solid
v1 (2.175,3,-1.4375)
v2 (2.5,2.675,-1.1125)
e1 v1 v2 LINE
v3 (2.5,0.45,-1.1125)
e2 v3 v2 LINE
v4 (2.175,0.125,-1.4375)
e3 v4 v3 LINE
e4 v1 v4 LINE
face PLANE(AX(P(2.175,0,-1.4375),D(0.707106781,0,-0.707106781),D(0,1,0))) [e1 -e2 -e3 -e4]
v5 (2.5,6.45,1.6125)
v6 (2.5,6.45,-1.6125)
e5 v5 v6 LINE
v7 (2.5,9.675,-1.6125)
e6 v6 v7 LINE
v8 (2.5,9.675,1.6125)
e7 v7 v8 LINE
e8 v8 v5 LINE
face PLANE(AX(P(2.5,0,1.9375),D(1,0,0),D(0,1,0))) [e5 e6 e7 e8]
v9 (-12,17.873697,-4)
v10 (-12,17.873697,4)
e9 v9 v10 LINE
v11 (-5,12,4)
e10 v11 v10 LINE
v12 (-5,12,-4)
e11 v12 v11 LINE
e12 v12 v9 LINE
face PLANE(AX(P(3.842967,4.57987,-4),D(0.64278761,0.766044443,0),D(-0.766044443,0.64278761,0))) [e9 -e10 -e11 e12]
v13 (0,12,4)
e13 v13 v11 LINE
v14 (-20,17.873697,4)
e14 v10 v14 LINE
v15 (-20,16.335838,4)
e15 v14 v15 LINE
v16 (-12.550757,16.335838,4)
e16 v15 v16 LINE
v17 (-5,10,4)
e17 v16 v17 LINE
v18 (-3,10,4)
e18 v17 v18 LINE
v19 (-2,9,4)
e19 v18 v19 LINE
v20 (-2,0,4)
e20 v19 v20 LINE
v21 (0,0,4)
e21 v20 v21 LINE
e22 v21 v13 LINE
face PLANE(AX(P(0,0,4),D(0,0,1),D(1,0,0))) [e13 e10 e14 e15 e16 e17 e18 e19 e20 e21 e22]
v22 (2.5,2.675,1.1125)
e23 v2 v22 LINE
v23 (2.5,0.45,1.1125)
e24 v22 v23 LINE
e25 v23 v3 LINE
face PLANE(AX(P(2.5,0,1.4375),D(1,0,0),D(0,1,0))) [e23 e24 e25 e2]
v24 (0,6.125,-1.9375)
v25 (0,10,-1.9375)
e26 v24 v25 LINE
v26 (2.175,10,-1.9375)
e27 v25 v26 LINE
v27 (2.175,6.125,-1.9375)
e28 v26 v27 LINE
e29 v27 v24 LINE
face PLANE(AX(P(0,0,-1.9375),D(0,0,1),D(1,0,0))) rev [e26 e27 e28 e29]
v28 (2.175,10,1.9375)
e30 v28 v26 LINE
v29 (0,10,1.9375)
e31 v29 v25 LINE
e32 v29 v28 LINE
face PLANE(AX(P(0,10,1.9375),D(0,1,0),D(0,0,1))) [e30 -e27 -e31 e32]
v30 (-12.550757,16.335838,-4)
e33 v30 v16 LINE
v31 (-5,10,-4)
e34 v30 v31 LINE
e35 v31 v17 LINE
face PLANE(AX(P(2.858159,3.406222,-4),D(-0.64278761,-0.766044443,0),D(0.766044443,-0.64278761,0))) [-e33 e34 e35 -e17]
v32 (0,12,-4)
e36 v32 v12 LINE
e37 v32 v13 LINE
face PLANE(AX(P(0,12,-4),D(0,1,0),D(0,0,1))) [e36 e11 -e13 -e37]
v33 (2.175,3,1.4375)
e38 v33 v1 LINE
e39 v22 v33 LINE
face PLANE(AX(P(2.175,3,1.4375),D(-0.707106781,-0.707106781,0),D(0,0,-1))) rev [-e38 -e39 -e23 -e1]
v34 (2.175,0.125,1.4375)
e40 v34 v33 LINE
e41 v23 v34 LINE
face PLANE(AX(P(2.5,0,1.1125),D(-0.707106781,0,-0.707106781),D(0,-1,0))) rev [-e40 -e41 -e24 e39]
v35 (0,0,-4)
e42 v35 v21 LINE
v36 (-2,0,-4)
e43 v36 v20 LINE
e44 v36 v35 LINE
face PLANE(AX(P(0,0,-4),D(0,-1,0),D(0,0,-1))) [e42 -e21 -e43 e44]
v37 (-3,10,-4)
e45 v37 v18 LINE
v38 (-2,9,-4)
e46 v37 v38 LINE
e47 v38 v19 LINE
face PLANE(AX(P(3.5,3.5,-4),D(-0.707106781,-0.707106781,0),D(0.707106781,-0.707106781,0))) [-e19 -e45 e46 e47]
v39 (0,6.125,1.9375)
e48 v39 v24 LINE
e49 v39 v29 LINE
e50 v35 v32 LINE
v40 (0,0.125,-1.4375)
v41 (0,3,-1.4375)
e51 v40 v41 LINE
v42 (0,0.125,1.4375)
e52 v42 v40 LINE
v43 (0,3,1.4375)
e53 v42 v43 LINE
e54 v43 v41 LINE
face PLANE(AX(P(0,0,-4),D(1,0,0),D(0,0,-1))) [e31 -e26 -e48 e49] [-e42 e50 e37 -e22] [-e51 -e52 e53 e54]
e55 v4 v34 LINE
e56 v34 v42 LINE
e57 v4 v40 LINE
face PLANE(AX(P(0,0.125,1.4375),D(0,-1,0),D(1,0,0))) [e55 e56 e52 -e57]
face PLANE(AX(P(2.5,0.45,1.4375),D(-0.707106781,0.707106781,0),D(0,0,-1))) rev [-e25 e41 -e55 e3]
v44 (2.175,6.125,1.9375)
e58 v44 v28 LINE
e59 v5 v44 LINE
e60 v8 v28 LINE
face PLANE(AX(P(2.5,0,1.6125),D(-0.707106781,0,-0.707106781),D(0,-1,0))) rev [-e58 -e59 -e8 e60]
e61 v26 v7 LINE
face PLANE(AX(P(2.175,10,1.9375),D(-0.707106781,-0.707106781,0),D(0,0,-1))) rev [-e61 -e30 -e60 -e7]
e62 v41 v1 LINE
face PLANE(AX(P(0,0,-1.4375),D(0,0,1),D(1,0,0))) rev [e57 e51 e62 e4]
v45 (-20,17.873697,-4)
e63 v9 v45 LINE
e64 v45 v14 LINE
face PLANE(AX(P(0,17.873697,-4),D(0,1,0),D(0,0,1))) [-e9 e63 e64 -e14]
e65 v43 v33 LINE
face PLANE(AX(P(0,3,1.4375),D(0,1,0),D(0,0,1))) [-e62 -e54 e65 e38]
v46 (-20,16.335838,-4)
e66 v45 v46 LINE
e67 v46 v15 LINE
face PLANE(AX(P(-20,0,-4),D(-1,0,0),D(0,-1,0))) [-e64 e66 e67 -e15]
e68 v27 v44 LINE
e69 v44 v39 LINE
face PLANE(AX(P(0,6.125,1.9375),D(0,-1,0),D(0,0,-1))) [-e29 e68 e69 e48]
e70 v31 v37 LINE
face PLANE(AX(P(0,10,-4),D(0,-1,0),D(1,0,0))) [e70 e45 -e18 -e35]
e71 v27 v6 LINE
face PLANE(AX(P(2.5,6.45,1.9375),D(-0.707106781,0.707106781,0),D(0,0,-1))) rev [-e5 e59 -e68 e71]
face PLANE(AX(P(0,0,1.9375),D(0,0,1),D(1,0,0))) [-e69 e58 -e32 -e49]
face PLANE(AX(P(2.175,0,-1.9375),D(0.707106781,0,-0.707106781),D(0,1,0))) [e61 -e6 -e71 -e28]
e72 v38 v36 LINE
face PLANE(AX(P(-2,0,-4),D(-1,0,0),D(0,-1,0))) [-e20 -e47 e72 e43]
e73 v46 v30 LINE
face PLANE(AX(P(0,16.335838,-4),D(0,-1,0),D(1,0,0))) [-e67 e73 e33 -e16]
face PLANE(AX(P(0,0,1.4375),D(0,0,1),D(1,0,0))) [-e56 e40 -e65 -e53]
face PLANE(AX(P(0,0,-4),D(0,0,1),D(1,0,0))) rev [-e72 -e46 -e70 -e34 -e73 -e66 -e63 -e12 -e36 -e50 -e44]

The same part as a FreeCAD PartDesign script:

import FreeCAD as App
import Part
import Sketcher

V = App.Vector
Q = App.Units.Quantity


def edges_at(feature, points):
    """Names of the edges that pass closest to the given points."""
    edges = feature.Shape.Edges
    near = lambda p: min(range(len(edges)), key=lambda i: edges[i].distToShape(Part.Vertex(*p))[0])
    return sorted({f"Edge{near(p) + 1}" for p in points})

doc = App.newDocument("Part")
body = doc.addObject("PartDesign::Body", "Body")

# Sketch on XY plane
sketch1 = body.newObject("Sketcher::SketchObject", "Sketch")
sketch1.AttachmentSupport = (doc.getObject("XY_Plane"), [""])
sketch1.MapMode = "FlatFace"
sketch1.addGeometry([
    Part.LineSegment(V(-5, 10, 0), V(-3, 10, 0)),  # 0
    Part.LineSegment(V(-3, 10, 0), V(-2, 9, 0)),  # 1
    Part.LineSegment(V(-2, 9, 0), V(-2, 0, 0)),  # 2
    Part.LineSegment(V(-2, 0, 0), V(0, 0, 0)),  # 3
    Part.LineSegment(V(0, 0, 0), V(0, 12, 0)),  # 4
    Part.LineSegment(V(0, 12, 0), V(-5, 12, 0)),  # 5
    Part.LineSegment(V(-5, 12, 0), V(-12, 17.9, 0)),  # 6
    Part.LineSegment(V(-12, 17.9, 0), V(-20, 17.9, 0)),  # 7
    Part.LineSegment(V(-20, 17.9, 0), V(-20, 16.3, 0)),  # 8
    Part.LineSegment(V(-20, 16.3, 0), V(-12.6, 16.3, 0)),  # 9
    Part.LineSegment(V(-12.6, 16.3, 0), V(-5, 10, 0)),  # 10
], False)
sketch1.addConstraint([
    Sketcher.Constraint("Coincident", 0, 2, 1, 1),
    Sketcher.Constraint("Coincident", 1, 2, 2, 1),
    Sketcher.Constraint("Coincident", 2, 2, 3, 1),
    Sketcher.Constraint("Coincident", 3, 2, 4, 1),
    Sketcher.Constraint("Coincident", 4, 2, 5, 1),
    Sketcher.Constraint("Coincident", 5, 2, 6, 1),
    Sketcher.Constraint("Coincident", 6, 2, 7, 1),
    Sketcher.Constraint("Coincident", 7, 2, 8, 1),
    Sketcher.Constraint("Coincident", 8, 2, 9, 1),
    Sketcher.Constraint("Coincident", 9, 2, 10, 1),
    Sketcher.Constraint("Coincident", 10, 2, 0, 1),
    Sketcher.Constraint("Horizontal", 0),
    Sketcher.Constraint("Vertical", 2),
    Sketcher.Constraint("Horizontal", 3),
    Sketcher.Constraint("Vertical", 4),
    Sketcher.Constraint("Horizontal", 5),
    Sketcher.Constraint("Horizontal", 7),
    Sketcher.Constraint("Vertical", 8),
    Sketcher.Constraint("Horizontal", 9),
    Sketcher.Constraint("Coincident", 3, 2, -1, 1),
    Sketcher.Constraint("Parallel", 6, 10),
    Sketcher.Constraint("Vertical", 5, 2, 10, 2),
    Sketcher.Constraint("Equal", 0, 3),
    Sketcher.Constraint("DistanceX", 0, 1, 0, 2, 2.0),
    Sketcher.Constraint("DistanceX", 5, 2, 5, 1, 5.0),
    Sketcher.Constraint("DistanceX", 7, 2, 7, 1, 8.0),
    Sketcher.Constraint("DistanceY", 2, 2, 2, 1, 9.0),
    Sketcher.Constraint("DistanceY", 4, 1, 4, 2, 12.0),
    Sketcher.Constraint("Angle", 1, Q("-45 deg")),
    Sketcher.Constraint("Angle", 6, Q("140 deg")),
    Sketcher.Constraint("DistanceX", 6, 2, -1, 1, 12.0),
    Sketcher.Constraint("DistanceY", 8, 2, 8, 1, 1.53786),
])
pad1 = body.newObject("PartDesign::Pad", "Pad")
pad1.Profile = sketch1
pad1.Length = 8
pad1.Midplane = True

# Sketch on XY plane
sketch2 = body.newObject("Sketcher::SketchObject", "Sketch001")
sketch2.AttachmentSupport = (doc.getObject("XY_Plane"), [""])
sketch2.MapMode = "FlatFace"
sketch2.addGeometry([
    Part.LineSegment(V(0, 10, 0), V(0, 6.1, 0)),
    Part.LineSegment(V(0, 6.1, 0), V(2.5, 6.1, 0)),
    Part.LineSegment(V(2.5, 6.1, 0), V(2.5, 10, 0)),
    Part.LineSegment(V(2.5, 10, 0), V(0, 10, 0)),
], False)
sketch2.addConstraint([
    Sketcher.Constraint("Coincident", 0, 2, 1, 1),
    Sketcher.Constraint("Coincident", 1, 2, 2, 1),
    Sketcher.Constraint("Coincident", 2, 2, 3, 1),
    Sketcher.Constraint("Coincident", 3, 2, 0, 1),
    Sketcher.Constraint("Vertical", 0),
    Sketcher.Constraint("Horizontal", 1),
    Sketcher.Constraint("Vertical", 2),
    Sketcher.Constraint("Horizontal", 3),
    Sketcher.Constraint("PointOnObject", 0, 2, -2),
    Sketcher.Constraint("DistanceX", 1, 1, 1, 2, 2.5),
    Sketcher.Constraint("DistanceY", -1, 1, 2, 2, 10.0),
    Sketcher.Constraint("DistanceY", 0, 2, 0, 1, 3.875),
])
pad2 = body.newObject("PartDesign::Pad", "Pad001")
pad2.Profile = sketch2
pad2.Length = 3.875
pad2.Midplane = True

# Sketch on XY plane
sketch3 = body.newObject("Sketcher::SketchObject", "Sketch002")
sketch3.AttachmentSupport = (doc.getObject("XY_Plane"), [""])
sketch3.MapMode = "FlatFace"
sketch3.addGeometry([
    Part.LineSegment(V(0, 3, 0), V(0, 0.1, 0)),
    Part.LineSegment(V(0, 0.1, 0), V(2.5, 0.1, 0)),
    Part.LineSegment(V(2.5, 0.1, 0), V(2.5, 3, 0)),
    Part.LineSegment(V(2.5, 3, 0), V(0, 3, 0)),
], False)
sketch3.addConstraint([
    Sketcher.Constraint("Coincident", 0, 2, 1, 1),
    Sketcher.Constraint("Coincident", 1, 2, 2, 1),
    Sketcher.Constraint("Coincident", 2, 2, 3, 1),
    Sketcher.Constraint("Coincident", 3, 2, 0, 1),
    Sketcher.Constraint("Vertical", 0),
    Sketcher.Constraint("Horizontal", 1),
    Sketcher.Constraint("Vertical", 2),
    Sketcher.Constraint("Horizontal", 3),
    Sketcher.Constraint("PointOnObject", 0, 2, -2),
    Sketcher.Constraint("DistanceX", 1, 1, 1, 2, 2.5),
    Sketcher.Constraint("DistanceY", -1, 1, 2, 2, 3.0),
    Sketcher.Constraint("DistanceY", 0, 2, 0, 1, 2.875),
])
pad3 = body.newObject("PartDesign::Pad", "Pad002")
pad3.Profile = sketch3
pad3.Length = 2.875
pad3.Midplane = True
doc.recompute()

chamfer = body.newObject("PartDesign::Chamfer", "Chamfer")
chamfer.Base = (pad3, edges_at(pad3, [
    (2.5, 8.062, 1.938),
    (2.5, 6.125, 0),
    (2.5, 10, 0),
    (2.5, 8.062, -1.938),
    (2.5, 1.562, 1.438),
    (2.5, 0.125, 0),
    (2.5, 3, 0),
    (2.5, 1.562, -1.438),
]))
chamfer.Size = 0.325

doc.recompute()
